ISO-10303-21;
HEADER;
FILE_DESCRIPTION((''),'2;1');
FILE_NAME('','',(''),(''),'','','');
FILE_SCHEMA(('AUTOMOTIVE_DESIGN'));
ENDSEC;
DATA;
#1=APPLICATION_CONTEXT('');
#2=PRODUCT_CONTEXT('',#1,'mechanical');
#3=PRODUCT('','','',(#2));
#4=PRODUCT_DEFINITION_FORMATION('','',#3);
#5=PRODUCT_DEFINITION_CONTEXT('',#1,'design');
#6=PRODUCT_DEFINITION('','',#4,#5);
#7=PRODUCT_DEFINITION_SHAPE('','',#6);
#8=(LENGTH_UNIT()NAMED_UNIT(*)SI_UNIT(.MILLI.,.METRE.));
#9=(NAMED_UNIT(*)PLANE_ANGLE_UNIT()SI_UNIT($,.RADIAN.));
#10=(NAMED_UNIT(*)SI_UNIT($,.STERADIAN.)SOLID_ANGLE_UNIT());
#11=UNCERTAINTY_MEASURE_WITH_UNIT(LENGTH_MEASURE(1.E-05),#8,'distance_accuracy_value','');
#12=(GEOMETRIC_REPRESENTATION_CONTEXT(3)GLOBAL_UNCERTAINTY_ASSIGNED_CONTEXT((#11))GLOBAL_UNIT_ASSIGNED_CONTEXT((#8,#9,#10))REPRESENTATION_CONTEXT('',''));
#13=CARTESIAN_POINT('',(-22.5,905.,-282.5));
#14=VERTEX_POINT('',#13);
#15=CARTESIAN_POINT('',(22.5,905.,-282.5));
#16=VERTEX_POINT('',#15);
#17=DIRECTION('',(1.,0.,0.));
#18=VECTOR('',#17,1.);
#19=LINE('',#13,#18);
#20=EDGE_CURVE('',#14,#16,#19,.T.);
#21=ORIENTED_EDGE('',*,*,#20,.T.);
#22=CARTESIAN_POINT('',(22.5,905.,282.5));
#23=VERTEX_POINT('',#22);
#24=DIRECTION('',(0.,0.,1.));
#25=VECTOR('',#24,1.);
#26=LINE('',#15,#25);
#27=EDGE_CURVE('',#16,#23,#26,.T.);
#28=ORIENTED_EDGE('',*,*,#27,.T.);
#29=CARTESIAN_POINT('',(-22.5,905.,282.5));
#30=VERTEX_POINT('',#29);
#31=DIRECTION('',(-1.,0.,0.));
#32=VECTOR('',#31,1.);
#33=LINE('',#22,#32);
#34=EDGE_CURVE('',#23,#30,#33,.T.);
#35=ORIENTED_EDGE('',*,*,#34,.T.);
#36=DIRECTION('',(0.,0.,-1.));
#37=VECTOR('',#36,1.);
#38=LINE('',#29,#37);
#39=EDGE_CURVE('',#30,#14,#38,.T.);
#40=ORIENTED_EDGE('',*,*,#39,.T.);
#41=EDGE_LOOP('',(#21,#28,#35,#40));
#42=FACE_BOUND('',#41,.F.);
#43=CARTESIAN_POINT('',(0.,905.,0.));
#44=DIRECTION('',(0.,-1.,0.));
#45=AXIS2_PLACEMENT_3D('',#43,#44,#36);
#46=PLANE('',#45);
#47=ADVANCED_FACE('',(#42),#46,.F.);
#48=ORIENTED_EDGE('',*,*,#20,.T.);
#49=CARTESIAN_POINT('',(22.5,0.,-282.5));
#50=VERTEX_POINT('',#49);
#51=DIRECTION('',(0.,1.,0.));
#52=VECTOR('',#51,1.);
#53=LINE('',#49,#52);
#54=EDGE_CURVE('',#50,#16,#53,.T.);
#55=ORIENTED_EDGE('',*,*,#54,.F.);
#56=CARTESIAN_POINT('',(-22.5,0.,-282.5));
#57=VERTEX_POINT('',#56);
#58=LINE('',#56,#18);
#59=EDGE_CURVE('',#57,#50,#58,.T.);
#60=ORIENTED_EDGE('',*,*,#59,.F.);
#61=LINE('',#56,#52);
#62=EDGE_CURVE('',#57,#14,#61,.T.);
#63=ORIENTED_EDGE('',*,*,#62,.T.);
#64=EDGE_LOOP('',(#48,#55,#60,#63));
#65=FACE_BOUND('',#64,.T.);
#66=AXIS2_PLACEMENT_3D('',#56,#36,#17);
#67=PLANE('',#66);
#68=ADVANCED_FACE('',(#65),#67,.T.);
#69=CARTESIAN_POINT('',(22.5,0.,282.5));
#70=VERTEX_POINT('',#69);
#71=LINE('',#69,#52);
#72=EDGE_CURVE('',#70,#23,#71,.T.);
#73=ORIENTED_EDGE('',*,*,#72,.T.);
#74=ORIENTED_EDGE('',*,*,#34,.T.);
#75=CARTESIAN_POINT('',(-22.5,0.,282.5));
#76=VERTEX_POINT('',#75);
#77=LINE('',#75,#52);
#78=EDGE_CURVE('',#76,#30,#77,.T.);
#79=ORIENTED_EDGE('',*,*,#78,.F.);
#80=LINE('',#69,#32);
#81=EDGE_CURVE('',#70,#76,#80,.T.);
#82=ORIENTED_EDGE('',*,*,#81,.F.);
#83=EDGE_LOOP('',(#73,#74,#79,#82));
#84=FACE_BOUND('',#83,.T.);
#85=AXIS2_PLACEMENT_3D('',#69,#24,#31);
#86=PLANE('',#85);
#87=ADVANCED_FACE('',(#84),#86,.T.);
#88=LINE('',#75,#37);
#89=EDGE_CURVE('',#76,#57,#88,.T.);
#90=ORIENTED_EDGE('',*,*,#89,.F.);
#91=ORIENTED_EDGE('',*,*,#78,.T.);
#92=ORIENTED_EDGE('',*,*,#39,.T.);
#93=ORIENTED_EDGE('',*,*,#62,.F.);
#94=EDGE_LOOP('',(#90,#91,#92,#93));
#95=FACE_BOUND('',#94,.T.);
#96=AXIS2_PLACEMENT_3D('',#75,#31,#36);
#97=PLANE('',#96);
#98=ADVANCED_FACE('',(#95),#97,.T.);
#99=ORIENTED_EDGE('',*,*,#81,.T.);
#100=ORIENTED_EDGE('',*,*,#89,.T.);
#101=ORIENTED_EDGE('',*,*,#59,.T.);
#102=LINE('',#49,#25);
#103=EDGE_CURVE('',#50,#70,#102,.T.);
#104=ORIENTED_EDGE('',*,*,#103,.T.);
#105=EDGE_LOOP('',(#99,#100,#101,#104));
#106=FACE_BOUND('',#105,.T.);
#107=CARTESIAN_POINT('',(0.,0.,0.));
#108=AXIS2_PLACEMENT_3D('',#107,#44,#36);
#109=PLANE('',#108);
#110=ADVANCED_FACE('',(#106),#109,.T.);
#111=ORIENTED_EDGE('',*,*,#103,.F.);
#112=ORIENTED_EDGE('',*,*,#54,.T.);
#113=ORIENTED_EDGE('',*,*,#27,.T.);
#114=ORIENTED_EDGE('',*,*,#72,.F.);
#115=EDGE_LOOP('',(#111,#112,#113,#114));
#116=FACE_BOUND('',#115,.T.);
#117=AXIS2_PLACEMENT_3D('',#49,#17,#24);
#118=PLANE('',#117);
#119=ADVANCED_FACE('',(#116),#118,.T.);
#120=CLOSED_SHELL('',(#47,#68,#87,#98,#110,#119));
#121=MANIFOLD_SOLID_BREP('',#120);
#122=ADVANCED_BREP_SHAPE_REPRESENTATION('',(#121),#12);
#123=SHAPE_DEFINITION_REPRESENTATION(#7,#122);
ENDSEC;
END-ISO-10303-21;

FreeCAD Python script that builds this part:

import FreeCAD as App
import Part
import Sketcher


def add_polygon(sketch, points):
    """Adds a closed chain of lines whose ends are joined by coincident constraints."""
    first, n = sketch.GeometryCount, len(points)
    for a, b in zip(points, points[1:] + points[:1]):
        sketch.addGeometry(Part.LineSegment(App.Vector(*a, 0), App.Vector(*b, 0)), False)
    for i in range(n):
        sketch.addConstraint(Sketcher.Constraint("Coincident", first + i, 2, first + (i + 1) % n, 1))

doc = App.newDocument("Part")
params = doc.addObject("Spreadsheet::Sheet", "Params")
for row, (alias, value) in enumerate([
    ("sketch1_width", "45 mm"),
    ("sketch1_height", "565 mm"),
    ("pad1_length", "905 mm"),
], start=1):
    params.set(f"A{row}", alias)
    params.set(f"B{row}", "=" + value)
    params.setAlias(f"B{row}", alias)

body = doc.addObject("PartDesign::Body", "Body")

# Sketch on XZ plane
sketch1 = body.newObject("Sketcher::SketchObject", "Sketch")
sketch1.AttachmentSupport = (doc.getObject("XZ_Plane"), [""])
sketch1.MapMode = "FlatFace"
add_polygon(sketch1, [(-22, 282), (-22, -282), (22, -282), (22, 282)])  # lines 0-3
sketch1.addConstraint([
    Sketcher.Constraint("Vertical", 0),
    Sketcher.Constraint("Horizontal", 1),
    Sketcher.Constraint("Vertical", 2),
    Sketcher.Constraint("Horizontal", 3),
    Sketcher.Constraint("Symmetric", 0, 2, 2, 2, -1, 1),
    Sketcher.Constraint("DistanceX", 1, 1, 1, 2, 45.0),
    Sketcher.Constraint("DistanceY", 0, 2, 0, 1, 565.0),
])
sketch1.setExpression("Constraints[9]", "Params.sketch1_width")
sketch1.setExpression("Constraints[10]", "Params.sketch1_height")
pad1 = body.newObject("PartDesign::Pad", "Pad")
pad1.Profile = sketch1
pad1.setExpression("Length", "Params.pad1_length")
pad1.Reversed = True

doc.recompute()
